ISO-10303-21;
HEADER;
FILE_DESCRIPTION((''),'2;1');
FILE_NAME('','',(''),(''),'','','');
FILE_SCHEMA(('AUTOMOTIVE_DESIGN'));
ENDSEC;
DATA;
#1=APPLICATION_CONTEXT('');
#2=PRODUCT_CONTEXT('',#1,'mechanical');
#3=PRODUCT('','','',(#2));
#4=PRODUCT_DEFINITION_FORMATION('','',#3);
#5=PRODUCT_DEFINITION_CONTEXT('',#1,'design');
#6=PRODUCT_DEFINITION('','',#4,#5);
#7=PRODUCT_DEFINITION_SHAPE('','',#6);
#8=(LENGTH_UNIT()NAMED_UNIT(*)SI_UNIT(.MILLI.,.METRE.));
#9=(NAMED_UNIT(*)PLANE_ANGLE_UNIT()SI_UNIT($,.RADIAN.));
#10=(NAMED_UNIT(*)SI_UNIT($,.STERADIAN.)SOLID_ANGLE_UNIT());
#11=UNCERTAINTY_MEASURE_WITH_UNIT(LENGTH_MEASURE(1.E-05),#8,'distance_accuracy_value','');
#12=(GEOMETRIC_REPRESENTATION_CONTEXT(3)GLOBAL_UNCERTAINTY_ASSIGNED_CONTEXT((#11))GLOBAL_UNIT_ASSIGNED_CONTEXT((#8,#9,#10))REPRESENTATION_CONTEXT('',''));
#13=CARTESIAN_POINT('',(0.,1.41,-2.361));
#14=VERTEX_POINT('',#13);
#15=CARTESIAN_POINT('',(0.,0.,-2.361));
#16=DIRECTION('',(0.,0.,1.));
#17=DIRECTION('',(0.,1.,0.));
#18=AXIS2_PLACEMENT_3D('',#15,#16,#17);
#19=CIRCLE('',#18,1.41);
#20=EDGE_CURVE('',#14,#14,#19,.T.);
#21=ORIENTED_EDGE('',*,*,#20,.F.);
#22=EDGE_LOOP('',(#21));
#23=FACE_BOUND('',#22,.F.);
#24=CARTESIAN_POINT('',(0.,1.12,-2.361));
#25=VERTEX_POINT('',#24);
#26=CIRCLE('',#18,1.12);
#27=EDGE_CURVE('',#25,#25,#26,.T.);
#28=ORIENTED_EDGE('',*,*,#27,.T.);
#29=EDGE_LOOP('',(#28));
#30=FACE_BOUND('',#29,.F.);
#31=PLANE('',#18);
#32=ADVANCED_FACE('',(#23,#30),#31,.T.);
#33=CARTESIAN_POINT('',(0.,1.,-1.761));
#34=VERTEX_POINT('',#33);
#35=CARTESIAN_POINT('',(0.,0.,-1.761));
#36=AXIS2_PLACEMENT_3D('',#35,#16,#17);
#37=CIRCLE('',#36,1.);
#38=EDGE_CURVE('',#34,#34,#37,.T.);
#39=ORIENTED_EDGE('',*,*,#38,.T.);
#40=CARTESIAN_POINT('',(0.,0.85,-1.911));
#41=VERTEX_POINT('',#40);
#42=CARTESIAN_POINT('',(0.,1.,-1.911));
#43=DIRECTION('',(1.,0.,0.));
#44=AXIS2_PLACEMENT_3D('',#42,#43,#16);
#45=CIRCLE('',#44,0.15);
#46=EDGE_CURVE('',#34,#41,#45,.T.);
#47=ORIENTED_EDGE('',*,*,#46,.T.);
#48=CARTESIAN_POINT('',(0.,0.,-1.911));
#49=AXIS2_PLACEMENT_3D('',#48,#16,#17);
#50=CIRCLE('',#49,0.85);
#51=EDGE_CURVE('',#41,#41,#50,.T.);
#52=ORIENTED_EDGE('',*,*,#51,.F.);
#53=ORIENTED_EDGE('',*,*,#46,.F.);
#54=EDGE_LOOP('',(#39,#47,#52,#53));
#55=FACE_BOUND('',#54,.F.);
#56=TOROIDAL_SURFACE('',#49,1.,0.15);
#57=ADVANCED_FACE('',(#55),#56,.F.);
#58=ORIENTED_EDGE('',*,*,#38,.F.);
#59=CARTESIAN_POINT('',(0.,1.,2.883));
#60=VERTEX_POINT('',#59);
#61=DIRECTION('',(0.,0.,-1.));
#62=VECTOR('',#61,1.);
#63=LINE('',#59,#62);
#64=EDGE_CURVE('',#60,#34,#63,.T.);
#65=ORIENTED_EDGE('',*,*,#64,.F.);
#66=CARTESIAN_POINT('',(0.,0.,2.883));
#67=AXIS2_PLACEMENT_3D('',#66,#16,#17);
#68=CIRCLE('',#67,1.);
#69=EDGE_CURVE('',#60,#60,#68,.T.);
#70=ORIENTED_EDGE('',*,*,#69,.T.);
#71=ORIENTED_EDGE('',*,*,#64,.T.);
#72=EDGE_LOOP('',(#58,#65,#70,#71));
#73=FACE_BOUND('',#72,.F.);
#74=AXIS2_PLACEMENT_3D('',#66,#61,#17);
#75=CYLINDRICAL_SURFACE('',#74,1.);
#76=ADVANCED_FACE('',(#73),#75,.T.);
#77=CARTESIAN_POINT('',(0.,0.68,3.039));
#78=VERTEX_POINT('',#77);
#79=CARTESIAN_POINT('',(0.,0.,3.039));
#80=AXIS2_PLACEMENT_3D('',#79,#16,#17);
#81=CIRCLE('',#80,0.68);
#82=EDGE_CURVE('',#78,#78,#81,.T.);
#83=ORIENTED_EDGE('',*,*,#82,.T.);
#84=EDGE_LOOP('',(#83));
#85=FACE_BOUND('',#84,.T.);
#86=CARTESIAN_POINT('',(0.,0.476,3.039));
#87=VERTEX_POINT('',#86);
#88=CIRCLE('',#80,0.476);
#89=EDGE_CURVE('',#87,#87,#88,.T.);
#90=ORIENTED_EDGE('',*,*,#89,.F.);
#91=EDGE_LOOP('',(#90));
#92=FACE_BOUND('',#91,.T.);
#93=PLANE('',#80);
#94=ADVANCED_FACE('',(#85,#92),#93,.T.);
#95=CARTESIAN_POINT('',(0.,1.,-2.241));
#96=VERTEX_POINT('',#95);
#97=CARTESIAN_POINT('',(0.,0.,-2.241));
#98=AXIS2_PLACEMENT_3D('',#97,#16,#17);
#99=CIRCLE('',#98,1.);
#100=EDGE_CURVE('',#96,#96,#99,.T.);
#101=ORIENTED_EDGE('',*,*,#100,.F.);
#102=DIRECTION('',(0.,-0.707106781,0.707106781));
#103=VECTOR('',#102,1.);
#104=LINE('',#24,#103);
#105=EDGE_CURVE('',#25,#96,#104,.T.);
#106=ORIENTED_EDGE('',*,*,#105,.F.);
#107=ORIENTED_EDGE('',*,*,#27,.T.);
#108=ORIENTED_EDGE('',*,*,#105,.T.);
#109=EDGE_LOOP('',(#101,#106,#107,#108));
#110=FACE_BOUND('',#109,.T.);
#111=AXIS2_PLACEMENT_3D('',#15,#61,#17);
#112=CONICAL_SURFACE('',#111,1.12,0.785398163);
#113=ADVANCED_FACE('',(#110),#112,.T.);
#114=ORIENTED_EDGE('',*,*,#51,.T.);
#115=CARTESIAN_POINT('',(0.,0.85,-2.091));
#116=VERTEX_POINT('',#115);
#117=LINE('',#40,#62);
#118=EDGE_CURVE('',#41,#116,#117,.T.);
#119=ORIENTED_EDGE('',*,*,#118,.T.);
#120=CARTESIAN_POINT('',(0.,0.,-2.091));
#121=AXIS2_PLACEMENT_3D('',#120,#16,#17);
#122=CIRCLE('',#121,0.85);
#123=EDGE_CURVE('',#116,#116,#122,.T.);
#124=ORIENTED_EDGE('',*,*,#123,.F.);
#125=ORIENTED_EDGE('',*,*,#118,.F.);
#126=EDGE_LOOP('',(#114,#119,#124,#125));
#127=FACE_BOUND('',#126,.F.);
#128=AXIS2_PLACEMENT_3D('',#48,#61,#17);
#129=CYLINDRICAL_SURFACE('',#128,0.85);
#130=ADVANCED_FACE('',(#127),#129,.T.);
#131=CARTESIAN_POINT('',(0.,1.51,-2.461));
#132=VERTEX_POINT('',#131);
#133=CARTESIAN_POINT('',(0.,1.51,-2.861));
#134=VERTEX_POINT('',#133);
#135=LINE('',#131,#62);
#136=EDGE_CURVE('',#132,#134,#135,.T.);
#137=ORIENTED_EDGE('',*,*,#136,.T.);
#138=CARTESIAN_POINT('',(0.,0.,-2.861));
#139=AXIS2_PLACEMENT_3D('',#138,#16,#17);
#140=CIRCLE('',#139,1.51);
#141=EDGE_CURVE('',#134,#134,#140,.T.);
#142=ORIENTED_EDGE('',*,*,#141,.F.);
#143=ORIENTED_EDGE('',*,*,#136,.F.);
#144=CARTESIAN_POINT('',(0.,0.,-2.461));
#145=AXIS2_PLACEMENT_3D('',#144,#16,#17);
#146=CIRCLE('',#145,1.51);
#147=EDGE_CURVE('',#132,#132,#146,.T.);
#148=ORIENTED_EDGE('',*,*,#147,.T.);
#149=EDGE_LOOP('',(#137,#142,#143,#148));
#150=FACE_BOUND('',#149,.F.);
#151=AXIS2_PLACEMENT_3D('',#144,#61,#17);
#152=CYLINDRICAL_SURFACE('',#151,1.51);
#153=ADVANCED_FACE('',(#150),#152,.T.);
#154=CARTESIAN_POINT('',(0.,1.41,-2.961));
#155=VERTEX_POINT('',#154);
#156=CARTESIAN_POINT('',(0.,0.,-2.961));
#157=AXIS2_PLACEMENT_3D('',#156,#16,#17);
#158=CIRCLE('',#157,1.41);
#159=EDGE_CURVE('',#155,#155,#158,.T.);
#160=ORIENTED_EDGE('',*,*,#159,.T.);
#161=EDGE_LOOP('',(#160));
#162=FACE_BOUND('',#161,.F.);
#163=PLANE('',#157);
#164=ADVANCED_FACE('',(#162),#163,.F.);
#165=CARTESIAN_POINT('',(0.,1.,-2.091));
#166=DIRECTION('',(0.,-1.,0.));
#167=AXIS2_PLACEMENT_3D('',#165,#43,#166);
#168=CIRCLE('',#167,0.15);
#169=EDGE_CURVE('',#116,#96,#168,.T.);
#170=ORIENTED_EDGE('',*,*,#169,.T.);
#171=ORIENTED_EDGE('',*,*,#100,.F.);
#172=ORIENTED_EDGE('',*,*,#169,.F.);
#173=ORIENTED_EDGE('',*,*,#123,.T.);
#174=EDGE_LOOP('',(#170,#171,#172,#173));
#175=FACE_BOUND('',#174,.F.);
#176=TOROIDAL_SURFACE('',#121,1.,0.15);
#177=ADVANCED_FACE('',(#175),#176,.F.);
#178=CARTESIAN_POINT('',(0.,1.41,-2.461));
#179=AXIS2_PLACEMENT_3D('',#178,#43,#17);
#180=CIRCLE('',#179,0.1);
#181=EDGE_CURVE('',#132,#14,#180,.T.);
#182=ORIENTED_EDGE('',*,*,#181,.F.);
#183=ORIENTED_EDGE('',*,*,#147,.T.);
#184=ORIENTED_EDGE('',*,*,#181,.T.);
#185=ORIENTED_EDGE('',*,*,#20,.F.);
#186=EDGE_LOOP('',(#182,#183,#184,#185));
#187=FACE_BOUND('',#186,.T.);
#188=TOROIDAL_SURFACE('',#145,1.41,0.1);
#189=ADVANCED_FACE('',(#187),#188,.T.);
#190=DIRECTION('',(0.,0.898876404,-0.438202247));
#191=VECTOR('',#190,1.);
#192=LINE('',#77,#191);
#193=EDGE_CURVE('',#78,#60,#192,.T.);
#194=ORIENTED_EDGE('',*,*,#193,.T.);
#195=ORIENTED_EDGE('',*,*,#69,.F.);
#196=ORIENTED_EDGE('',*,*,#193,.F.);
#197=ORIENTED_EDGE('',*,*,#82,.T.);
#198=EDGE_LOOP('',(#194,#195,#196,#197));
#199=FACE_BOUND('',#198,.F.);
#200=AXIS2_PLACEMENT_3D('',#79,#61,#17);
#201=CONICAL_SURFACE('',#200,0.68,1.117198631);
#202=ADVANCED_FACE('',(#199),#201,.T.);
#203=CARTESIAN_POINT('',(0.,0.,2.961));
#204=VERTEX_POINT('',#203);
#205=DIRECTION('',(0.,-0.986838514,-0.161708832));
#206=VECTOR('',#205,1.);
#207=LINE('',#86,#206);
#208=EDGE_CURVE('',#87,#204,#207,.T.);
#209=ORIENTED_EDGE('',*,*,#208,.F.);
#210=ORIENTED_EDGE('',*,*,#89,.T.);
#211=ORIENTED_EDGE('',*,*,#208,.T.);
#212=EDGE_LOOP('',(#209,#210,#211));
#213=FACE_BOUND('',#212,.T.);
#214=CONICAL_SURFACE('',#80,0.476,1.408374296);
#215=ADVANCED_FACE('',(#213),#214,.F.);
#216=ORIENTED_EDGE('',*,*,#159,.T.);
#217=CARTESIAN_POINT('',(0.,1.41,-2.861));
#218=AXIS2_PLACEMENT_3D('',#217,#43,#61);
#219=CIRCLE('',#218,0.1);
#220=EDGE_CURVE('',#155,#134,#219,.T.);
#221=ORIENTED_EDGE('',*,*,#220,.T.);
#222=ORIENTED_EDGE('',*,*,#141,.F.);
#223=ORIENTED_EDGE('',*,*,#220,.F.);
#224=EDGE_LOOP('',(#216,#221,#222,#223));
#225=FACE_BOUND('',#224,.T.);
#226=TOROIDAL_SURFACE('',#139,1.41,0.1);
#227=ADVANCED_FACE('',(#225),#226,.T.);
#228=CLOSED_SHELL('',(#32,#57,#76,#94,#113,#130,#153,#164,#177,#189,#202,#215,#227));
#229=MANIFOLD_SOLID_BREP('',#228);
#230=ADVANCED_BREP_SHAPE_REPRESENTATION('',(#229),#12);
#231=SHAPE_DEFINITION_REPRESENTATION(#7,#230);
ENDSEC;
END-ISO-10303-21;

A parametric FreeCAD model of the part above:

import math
import FreeCAD as App
import Part
import Sketcher
Q = App.Units.Quantity

doc = App.newDocument("Part")
params = doc.addObject("Spreadsheet::Sheet", "Params")
for row, (alias, value) in enumerate([
    ("sketch1_radius", "0.1 mm"),
    ("sketch1_radius2", "0.15 mm"),
    ("sketch1_height", "0.4 mm"),
    ("sketch1_width", "1.41 mm"),
    ("sketch1_width2", "0.29 mm"),
    ("revolution_angle", "360 deg"),
], start=1):
    params.set(f"A{row}", alias)
    params.set(f"B{row}", "=" + value)
    params.setAlias(f"B{row}", alias)

body = doc.addObject("PartDesign::Body", "Body")

# Sketch on YZ plane
sketch1 = body.newObject("Sketcher::SketchObject", "Sketch")
sketch1.AttachmentSupport = (doc.getObject("YZ_Plane"), [""])
sketch1.MapMode = "FlatFace"
sketch1.addGeometry([
    Part.LineSegment(App.Vector(1, 2.88, 0), App.Vector(0.68, 3.04, 0)),  # 0
    Part.LineSegment(App.Vector(0.68, 3.04, 0), App.Vector(0.48, 3.04, 0)),  # 1
    Part.LineSegment(App.Vector(0.48, 3.04, 0), App.Vector(0, 2.96, 0)),  # 2
    Part.LineSegment(App.Vector(0, 2.96, 0), App.Vector(0, -2.96, 0)),  # 3
    Part.LineSegment(App.Vector(0, -2.96, 0), App.Vector(1.41, -2.96, 0)),  # 4
    Part.ArcOfCircle(Part.Circle(App.Vector(1.41, -2.86, 0), App.Vector(0, 0, 1), 0.1), math.radians(-90), math.radians(0)),  # 5
    Part.LineSegment(App.Vector(1.51, -2.86, 0), App.Vector(1.51, -2.46, 0)),  # 6
    Part.ArcOfCircle(Part.Circle(App.Vector(1.41, -2.46, 0), App.Vector(0, 0, 1), 0.1), math.radians(0), math.radians(90)),  # 7
    Part.LineSegment(App.Vector(1.41, -2.36, 0), App.Vector(1.12, -2.36, 0)),  # 8
    Part.LineSegment(App.Vector(1.12, -2.36, 0), App.Vector(1, -2.24, 0)),  # 9
    Part.ArcOfCircle(Part.Circle(App.Vector(1, -2.09, 0), App.Vector(0, 0, 1), 0.15), math.radians(180), math.radians(270)),  # 10
    Part.LineSegment(App.Vector(0.85, -2.09, 0), App.Vector(0.85, -1.91, 0)),  # 11
    Part.ArcOfCircle(Part.Circle(App.Vector(1, -1.91, 0), App.Vector(0, 0, 1), 0.15), math.radians(90), math.radians(180)),  # 12
    Part.LineSegment(App.Vector(1, -1.76, 0), App.Vector(1, 2.88, 0)),  # 13
], False)
sketch1.addConstraint([
    Sketcher.Constraint("Coincident", 0, 2, 1, 1),
    Sketcher.Constraint("Coincident", 1, 2, 2, 1),
    Sketcher.Constraint("Coincident", 2, 2, 3, 1),
    Sketcher.Constraint("Coincident", 3, 2, 4, 1),
    Sketcher.Constraint("Tangent", 4, 2, 5, 1),
    Sketcher.Constraint("Tangent", 5, 2, 6, 1),
    Sketcher.Constraint("Tangent", 6, 2, 7, 1),
    Sketcher.Constraint("Tangent", 7, 2, 8, 1),
    Sketcher.Constraint("Coincident", 8, 2, 9, 1),
    Sketcher.Constraint("Coincident", 9, 2, 10, 2),
    Sketcher.Constraint("Tangent", 10, 1, 11, 1),
    Sketcher.Constraint("Tangent", 11, 2, 12, 2),
    Sketcher.Constraint("Coincident", 12, 1, 13, 1),
    Sketcher.Constraint("Coincident", 13, 2, 0, 1),
    Sketcher.Constraint("Horizontal", 1),
    Sketcher.Constraint("Vertical", 3),
    Sketcher.Constraint("Horizontal", 4),
    Sketcher.Constraint("Vertical", 6),
    Sketcher.Constraint("Horizontal", 8),
    Sketcher.Constraint("Vertical", 11),
    Sketcher.Constraint("Vertical", 13),
    Sketcher.Constraint("Equal", 5, 7),
    Sketcher.Constraint("Equal", 10, 12),
    Sketcher.Constraint("Symmetric", 2, 2, 3, 2, -1, 1),
    Sketcher.Constraint("Vertical", 12, 3, 9, 2),
    Sketcher.Constraint("Vertical", 9, 2, 12, 1),
    Sketcher.Constraint("Radius", 5, Q("0.1 mm")),
    Sketcher.Constraint("Angle", 9, Q("135 deg")),
    Sketcher.Constraint("Radius", 10, Q("0.15 mm")),
    Sketcher.Constraint("DistanceY", 6, 1, 6, 2, Q("0.4 mm")),
    Sketcher.Constraint("DistanceX", -1, 1, 10, 3, Q("1 mm")),
    Sketcher.Constraint("DistanceY", 2, 2, 1, 2, Q("0.078 mm")),
    Sketcher.Constraint("DistanceY", 13, 2, 0, 2, Q("0.156 mm")),
    Sketcher.Constraint("DistanceX", 4, 1, 4, 2, Q("1.41 mm")),
    Sketcher.Constraint("DistanceX", 8, 2, 8, 1, Q("0.29 mm")),
    Sketcher.Constraint("DistanceY", 11, 1, 11, 2, Q("0.18 mm")),
    Sketcher.Constraint("Angle", 0, Q("154.0108 deg")),
    Sketcher.Constraint("DistanceY", 7, 3, 0, 2, Q("5.5 mm")),
    Sketcher.Constraint("DistanceX", 1, 2, 1, 1, Q("0.204 mm")),
])
sketch1.setExpression("Constraints[26]", "Params.sketch1_radius")
sketch1.setExpression("Constraints[28]", "Params.sketch1_radius2")
sketch1.setExpression("Constraints[29]", "Params.sketch1_height")
sketch1.setExpression("Constraints[33]", "Params.sketch1_width")
sketch1.setExpression("Constraints[34]", "Params.sketch1_width2")
revolution = body.newObject("PartDesign::Revolution", "Revolution")
revolution.Profile = sketch1
revolution.ReferenceAxis = (sketch1, ["V_Axis"])
revolution.setExpression("Angle", "Params.revolution_angle")

doc.recompute()
